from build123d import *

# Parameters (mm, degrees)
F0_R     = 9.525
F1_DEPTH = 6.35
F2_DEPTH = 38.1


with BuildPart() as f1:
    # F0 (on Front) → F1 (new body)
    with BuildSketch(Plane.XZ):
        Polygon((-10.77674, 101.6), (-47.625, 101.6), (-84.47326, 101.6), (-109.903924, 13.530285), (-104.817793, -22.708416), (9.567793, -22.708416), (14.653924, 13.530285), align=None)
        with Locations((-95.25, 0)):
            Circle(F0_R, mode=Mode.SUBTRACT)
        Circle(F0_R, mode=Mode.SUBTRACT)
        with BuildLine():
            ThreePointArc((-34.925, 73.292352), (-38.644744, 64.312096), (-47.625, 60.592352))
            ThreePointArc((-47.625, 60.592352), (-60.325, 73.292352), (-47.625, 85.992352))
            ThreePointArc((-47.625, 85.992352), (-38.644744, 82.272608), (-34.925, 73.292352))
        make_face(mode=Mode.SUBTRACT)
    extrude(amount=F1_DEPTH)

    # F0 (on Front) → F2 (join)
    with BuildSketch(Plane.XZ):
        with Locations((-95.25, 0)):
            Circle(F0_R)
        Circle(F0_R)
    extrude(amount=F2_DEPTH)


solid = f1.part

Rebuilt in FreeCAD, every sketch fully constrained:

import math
import FreeCAD as App
import Part
import Sketcher

V = App.Vector
Q = App.Units.Quantity


def add_polygon(sketch, points):
    """Adds a closed chain of lines whose ends are joined by coincident constraints."""
    first, n = sketch.GeometryCount, len(points)
    for a, b in zip(points, points[1:] + points[:1]):
        sketch.addGeometry(Part.LineSegment(App.Vector(*a, 0), App.Vector(*b, 0)), False)
    for i in range(n):
        sketch.addConstraint(Sketcher.Constraint("Coincident", first + i, 2, first + (i + 1) % n, 1))

doc = App.newDocument("Part")
params = doc.addObject("Spreadsheet::Sheet", "Params")
for row, (alias, value) in enumerate([
    ("sketch1_radius", "0.5 in"),
    ("sketch1_diameter", "0.75 in"),
    ("pad1_length", "0.25 in"),
    ("sketch2_diameter", "0.75 in"),
    ("pad2_length", "1.5 in"),
], start=1):
    params.set(f"A{row}", alias)
    params.set(f"B{row}", "=" + value)
    params.setAlias(f"B{row}", alias)

body = doc.addObject("PartDesign::Body", "Body")

# Sketch on XZ plane
sketch1 = body.newObject("Sketcher::SketchObject", "Sketch")
sketch1.AttachmentSupport = (doc.getObject("XZ_Plane"), [""])
sketch1.MapMode = "FlatFace"
add_polygon(sketch1, [(-11, 102), (-84, 102), (-110, 14), (-105, -23), (10, -23), (15, 14)])  # lines 0-5
sketch1.addGeometry(Part.Circle(V(-95, 0, 0), V(0, 0, 1), 10), False)  # 6
sketch1.addGeometry(Part.Circle(V(0, 0, 0), V(0, 0, 1), 10), False)  # 7
sketch1.addGeometry(Part.ArcOfCircle(Part.Circle(V(-48, 73, 0), V(0, 0, 1), 13), math.radians(0), math.radians(90)), False)  # 8
sketch1.addGeometry(Part.ArcOfCircle(Part.Circle(V(-48, 73, 0), V(0, 0, 1), 13), math.radians(-90), math.radians(0)), False)  # 9
sketch1.addGeometry(Part.ArcOfCircle(Part.Circle(V(-48, 73, 0), V(0, 0, 1), 13), math.radians(90), math.radians(270)), False)  # 10
sketch1.addConstraint(Sketcher.Constraint("Tangent", 8, 1, 9, 2))
sketch1.addConstraint(Sketcher.Constraint("Tangent", 9, 1, 10, 2))
sketch1.addConstraint(Sketcher.Constraint("Tangent", 10, 1, 8, 2))
sketch1.addConstraint(Sketcher.Constraint("Horizontal", 0))
sketch1.addConstraint(Sketcher.Constraint("Horizontal", 3))
sketch1.addConstraint(Sketcher.Constraint("Coincident", 7, 3, -1, 1))
sketch1.addConstraint(Sketcher.Constraint("Equal", 6, 7))
sketch1.addConstraint(Sketcher.Constraint("PointOnObject", 6, 3, -1))
sketch1.addConstraint(Sketcher.Constraint("Horizontal", 1, 2, 4, 2))
sketch1.addConstraint(Sketcher.Constraint("Horizontal", 10, 3, 8, 1))
sketch1.addConstraint(Sketcher.Constraint("Vertical", 10, 3, 9, 1))
sketch1.addConstraint(Sketcher.Constraint("Vertical", 9, 1, 10, 1))
sketch1.addConstraint(Sketcher.Constraint("Equal", 2, 4))
sketch1.addConstraint(Sketcher.Constraint("Equal", 1, 5))
sketch1.addConstraint(Sketcher.Constraint("Radius", 8, Q("0.5 in")))
sketch1.addConstraint(Sketcher.Constraint("Diameter", 6, Q("0.75 in")))
sketch1.addConstraint(Sketcher.Constraint("DistanceY", -1, 1, 0, 2, Q("4 in")))
sketch1.addConstraint(Sketcher.Constraint("DistanceX", 6, 3, -1, 1, Q("3.75 in")))
sketch1.addConstraint(Sketcher.Constraint("DistanceX", 8, 3, -1, 1, Q("1.875 in")))
sketch1.addConstraint(Sketcher.Constraint("DistanceX", 0, 2, 0, 1, Q("73.69652 mm")))
sketch1.addConstraint(Sketcher.Constraint("DistanceY", 2, 2, 1, 2, Q("36.238701 mm")))
sketch1.addConstraint(Sketcher.Constraint("Distance", 2, Q("36.593882 mm")))
sketch1.addConstraint(Sketcher.Constraint("DistanceX", 3, 1, 3, 2, Q("114.385586 mm")))
sketch1.addConstraint(Sketcher.Constraint("DistanceY", -1, 1, 8, 3, Q("73.292352 mm")))
sketch1.addConstraint(Sketcher.Constraint("DistanceX", 0, 2, -1, 1, Q("84.47326 mm")))
sketch1.addConstraint(Sketcher.Constraint("DistanceY", 3, 2, 9, 3, Q("96.000768 mm")))
sketch1.setExpression("Constraints[20]", "Params.sketch1_radius")
sketch1.setExpression("Constraints[21]", "Params.sketch1_diameter")
pad1 = body.newObject("PartDesign::Pad", "Pad")
pad1.Profile = sketch1
pad1.setExpression("Length", "Params.pad1_length")

# Sketch on XZ plane
sketch2 = body.newObject("Sketcher::SketchObject", "Sketch001")
sketch2.AttachmentSupport = (doc.getObject("XZ_Plane"), [""])
sketch2.MapMode = "FlatFace"
sketch2.addGeometry(Part.Circle(V(-95, 0, 0), V(0, 0, 1), 10), False)
sketch2.addGeometry(Part.Circle(V(0, 0, 0), V(0, 0, 1), 10), False)
sketch2.addConstraint(Sketcher.Constraint("Coincident", 1, 3, -1, 1))
sketch2.addConstraint(Sketcher.Constraint("Equal", 0, 1))
sketch2.addConstraint(Sketcher.Constraint("PointOnObject", 0, 3, -1))
sketch2.addConstraint(Sketcher.Constraint("Diameter", 0, Q("0.75 in")))
sketch2.addConstraint(Sketcher.Constraint("DistanceX", 0, 3, -1, 1, Q("3.75 in")))
sketch2.setExpression("Constraints[3]", "Params.sketch2_diameter")
pad2 = body.newObject("PartDesign::Pad", "Pad001")
pad2.Profile = sketch2
pad2.setExpression("Length", "Params.pad2_length")

doc.recompute()
